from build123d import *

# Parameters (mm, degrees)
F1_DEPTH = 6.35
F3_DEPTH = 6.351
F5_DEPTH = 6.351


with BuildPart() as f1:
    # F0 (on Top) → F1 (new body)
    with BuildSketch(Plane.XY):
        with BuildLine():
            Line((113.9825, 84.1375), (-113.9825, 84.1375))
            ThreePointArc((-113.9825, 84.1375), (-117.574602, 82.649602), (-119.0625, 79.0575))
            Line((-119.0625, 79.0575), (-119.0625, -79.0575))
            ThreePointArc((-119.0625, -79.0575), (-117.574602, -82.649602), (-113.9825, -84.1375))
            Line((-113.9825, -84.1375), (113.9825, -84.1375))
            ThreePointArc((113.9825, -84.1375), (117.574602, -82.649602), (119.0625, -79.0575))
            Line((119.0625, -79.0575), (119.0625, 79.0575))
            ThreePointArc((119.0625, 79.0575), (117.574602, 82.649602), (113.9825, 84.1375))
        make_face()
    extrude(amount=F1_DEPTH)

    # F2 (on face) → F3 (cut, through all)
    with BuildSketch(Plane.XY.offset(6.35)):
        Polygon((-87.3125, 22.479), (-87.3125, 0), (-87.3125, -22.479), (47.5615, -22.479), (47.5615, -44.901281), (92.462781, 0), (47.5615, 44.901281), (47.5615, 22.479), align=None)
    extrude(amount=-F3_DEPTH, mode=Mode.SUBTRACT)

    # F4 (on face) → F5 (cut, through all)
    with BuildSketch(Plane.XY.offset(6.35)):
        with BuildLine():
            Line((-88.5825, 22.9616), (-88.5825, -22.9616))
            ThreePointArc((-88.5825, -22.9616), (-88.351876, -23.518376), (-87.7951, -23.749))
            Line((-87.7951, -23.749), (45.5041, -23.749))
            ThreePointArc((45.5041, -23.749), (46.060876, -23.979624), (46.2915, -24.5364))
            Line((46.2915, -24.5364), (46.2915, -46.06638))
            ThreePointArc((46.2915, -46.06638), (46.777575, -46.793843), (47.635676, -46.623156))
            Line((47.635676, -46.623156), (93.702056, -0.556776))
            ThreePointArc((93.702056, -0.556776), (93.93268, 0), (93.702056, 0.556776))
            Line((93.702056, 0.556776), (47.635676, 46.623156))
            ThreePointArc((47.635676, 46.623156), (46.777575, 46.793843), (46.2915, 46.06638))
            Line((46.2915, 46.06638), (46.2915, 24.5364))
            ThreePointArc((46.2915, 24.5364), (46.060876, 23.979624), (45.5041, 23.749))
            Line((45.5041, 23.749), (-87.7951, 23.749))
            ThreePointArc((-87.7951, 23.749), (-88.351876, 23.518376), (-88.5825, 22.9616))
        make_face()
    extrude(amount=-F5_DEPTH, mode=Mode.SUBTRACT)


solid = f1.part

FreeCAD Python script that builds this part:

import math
import FreeCAD as App
import Part
import Sketcher
from FreeCAD import Vector
Q = App.Units.Quantity

doc = App.newDocument("Part")
body = doc.addObject("PartDesign::Body", "Body")

# Sketch on XY plane
sketch1 = body.newObject("Sketcher::SketchObject", "Sketch")
sketch1.AttachmentSupport = (doc.getObject("XY_Plane"), [""])
sketch1.MapMode = "FlatFace"
sketch1.addGeometry([
    Part.LineSegment(Vector(114, 84, 0), Vector(-114, 84, 0)),  # 0
    Part.ArcOfCircle(Part.Circle(Vector(-114, 79, 0), Vector(0, 0, 1), 5), math.radians(90), math.radians(180)),  # 1
    Part.LineSegment(Vector(-119, 79, 0), Vector(-119, -79, 0)),  # 2
    Part.ArcOfCircle(Part.Circle(Vector(-114, -79, 0), Vector(0, 0, 1), 5), math.radians(-180), math.radians(-90)),  # 3
    Part.LineSegment(Vector(-114, -84, 0), Vector(114, -84, 0)),  # 4
    Part.ArcOfCircle(Part.Circle(Vector(114, -79, 0), Vector(0, 0, 1), 5), math.radians(-90), math.radians(0)),  # 5
    Part.LineSegment(Vector(119, -79, 0), Vector(119, 79, 0)),  # 6
    Part.ArcOfCircle(Part.Circle(Vector(114, 79, 0), Vector(0, 0, 1), 5), math.radians(0), math.radians(90)),  # 7
], False)
sketch1.addConstraint([
    Sketcher.Constraint("Tangent", 0, 2, 1, 1),
    Sketcher.Constraint("Tangent", 1, 2, 2, 1),
    Sketcher.Constraint("Tangent", 2, 2, 3, 1),
    Sketcher.Constraint("Tangent", 3, 2, 4, 1),
    Sketcher.Constraint("Tangent", 4, 2, 5, 1),
    Sketcher.Constraint("Tangent", 5, 2, 6, 1),
    Sketcher.Constraint("Tangent", 6, 2, 7, 1),
    Sketcher.Constraint("Tangent", 7, 2, 0, 1),
    Sketcher.Constraint("Horizontal", 0),
    Sketcher.Constraint("Vertical", 2),
    Sketcher.Constraint("Horizontal", 4),
    Sketcher.Constraint("Vertical", 6),
    Sketcher.Constraint("Equal", 1, 3),
    Sketcher.Constraint("Equal", 3, 5),
    Sketcher.Constraint("Equal", 5, 7),
    Sketcher.Constraint("Symmetric", 1, 3, 5, 3, -1, 1),
    Sketcher.Constraint("Radius", 1, Q("0.2000001 in")),
    Sketcher.Constraint("DistanceX", 0, 2, 0, 1, Q("8.975 in")),
    Sketcher.Constraint("DistanceY", 2, 2, 2, 1, Q("6.225 in")),
])
pad1 = body.newObject("PartDesign::Pad", "Pad")
pad1.Profile = sketch1
pad1.Length = Q("0.25 in")

# Sketch on XY plane
sketch2 = body.newObject("Sketcher::SketchObject", "Sketch001")
sketch2.AttachmentSupport = (doc.getObject("XY_Plane"), [""])
sketch2.MapMode = "FlatFace"
sketch2.AttachmentOffset = App.Placement(Vector(0, 0, 0.25 * 25.4), App.Rotation())
sketch2.addGeometry([
    Part.LineSegment(Vector(-87, 22, 0), Vector(-87, -22, 0)),  # 0
    Part.LineSegment(Vector(-87, -22, 0), Vector(48, -22, 0)),  # 1
    Part.LineSegment(Vector(48, -22, 0), Vector(48, -45, 0)),  # 2
    Part.LineSegment(Vector(48, -45, 0), Vector(92, 0, 0)),  # 3
    Part.LineSegment(Vector(92, 0, 0), Vector(48, 45, 0)),  # 4
    Part.LineSegment(Vector(48, 45, 0), Vector(48, 22, 0)),  # 5
    Part.LineSegment(Vector(48, 22, 0), Vector(-87, 22, 0)),  # 6
], False)
sketch2.addConstraint([
    Sketcher.Constraint("Coincident", 0, 2, 1, 1),
    Sketcher.Constraint("Coincident", 1, 2, 2, 1),
    Sketcher.Constraint("Coincident", 2, 2, 3, 1),
    Sketcher.Constraint("Coincident", 3, 2, 4, 1),
    Sketcher.Constraint("Coincident", 4, 2, 5, 1),
    Sketcher.Constraint("Coincident", 5, 2, 6, 1),
    Sketcher.Constraint("Coincident", 6, 2, 0, 1),
    Sketcher.Constraint("Vertical", 0),
    Sketcher.Constraint("Horizontal", 1),
    Sketcher.Constraint("Vertical", 2),
    Sketcher.Constraint("Vertical", 5),
    Sketcher.Constraint("Horizontal", 6),
    Sketcher.Constraint("Symmetric", 2, 2, 4, 2, -1),
    Sketcher.Constraint("PointOnObject", 3, 2, -1),
    Sketcher.Constraint("Perpendicular", 3, 4),
    Sketcher.Constraint("Equal", 2, 5),
    Sketcher.Constraint("Distance", 3, Q("2.5 in")),
    Sketcher.Constraint("DistanceX", 1, 1, 1, 2, Q("5.31 in")),
    Sketcher.Constraint("DistanceY", 0, 2, 0, 1, Q("1.77 in")),
    Sketcher.Constraint("DistanceX", 0, 2, -1, 1, Q("3.4375 in")),
])
pocket1 = body.newObject("PartDesign::Pocket", "Pocket")
pocket1.Profile = sketch2
pocket1.Type = "ThroughAll"

# Sketch on XY plane
sketch3 = body.newObject("Sketcher::SketchObject", "Sketch002")
sketch3.AttachmentSupport = (doc.getObject("XY_Plane"), [""])
sketch3.MapMode = "FlatFace"
sketch3.AttachmentOffset = App.Placement(Vector(0, 0, 0.25 * 25.4), App.Rotation())
sketch3.addGeometry([
    Part.LineSegment(Vector(-88.6, 23, 0), Vector(-88.6, -23, 0)),  # 0
    Part.ArcOfCircle(Part.Circle(Vector(-87.8, -23, 0), Vector(0, 0, 1), 0.8), math.radians(180), math.radians(270)),  # 1
    Part.LineSegment(Vector(-87.8, -23.7, 0), Vector(45.5, -23.7, 0)),  # 2
    Part.ArcOfCircle(Part.Circle(Vector(45.5, -24.5, 0), Vector(0, 0, 1), 0.8), math.radians(0), math.radians(90)),  # 3
    Part.LineSegment(Vector(46.3, -24.5, 0), Vector(46.3, -46.1, 0)),  # 4
    Part.ArcOfCircle(Part.Circle(Vector(47.1, -46.1, 0), Vector(0, 0, 1), 0.8), math.radians(180), math.radians(315)),  # 5
    Part.LineSegment(Vector(47.6, -46.6, 0), Vector(93.7, -0.6, 0)),  # 6
    Part.ArcOfCircle(Part.Circle(Vector(93.1, 0, 0), Vector(0, 0, 1), 0.8), math.radians(-45), math.radians(45)),  # 7
    Part.LineSegment(Vector(93.7, 0.6, 0), Vector(47.6, 46.6, 0)),  # 8
    Part.ArcOfCircle(Part.Circle(Vector(47.1, 46.1, 0), Vector(0, 0, 1), 0.8), math.radians(45), math.radians(180)),  # 9
    Part.LineSegment(Vector(46.3, 46.1, 0), Vector(46.3, 24.5, 0)),  # 10
    Part.ArcOfCircle(Part.Circle(Vector(45.5, 24.5, 0), Vector(0, 0, 1), 0.8), math.radians(-90), math.radians(0)),  # 11
    Part.LineSegment(Vector(45.5, 23.7, 0), Vector(-87.8, 23.7, 0)),  # 12
    Part.ArcOfCircle(Part.Circle(Vector(-87.8, 23, 0), Vector(0, 0, 1), 0.8), math.radians(90), math.radians(180)),  # 13
], False)
sketch3.addConstraint([
    Sketcher.Constraint("Tangent", 0, 2, 1, 1),
    Sketcher.Constraint("Tangent", 1, 2, 2, 1),
    Sketcher.Constraint("Tangent", 2, 2, 3, 2),
    Sketcher.Constraint("Tangent", 3, 1, 4, 1),
    Sketcher.Constraint("Tangent", 4, 2, 5, 1),
    Sketcher.Constraint("Tangent", 5, 2, 6, 1),
    Sketcher.Constraint("Tangent", 6, 2, 7, 1),
    Sketcher.Constraint("Tangent", 7, 2, 8, 1),
    Sketcher.Constraint("Tangent", 8, 2, 9, 1),
    Sketcher.Constraint("Tangent", 9, 2, 10, 1),
    Sketcher.Constraint("Tangent", 10, 2, 11, 2),
    Sketcher.Constraint("Tangent", 11, 1, 12, 1),
    Sketcher.Constraint("Tangent", 12, 2, 13, 1),
    Sketcher.Constraint("Tangent", 13, 2, 0, 1),
    Sketcher.Constraint("Vertical", 0),
    Sketcher.Constraint("Horizontal", 2),
    Sketcher.Constraint("Vertical", 4),
    Sketcher.Constraint("Vertical", 10),
    Sketcher.Constraint("Horizontal", 12),
    Sketcher.Constraint("Equal", 1, 3),
    Sketcher.Constraint("Equal", 3, 5),
    Sketcher.Constraint("Equal", 5, 7),
    Sketcher.Constraint("Equal", 7, 9),
    Sketcher.Constraint("Equal", 9, 11),
    Sketcher.Constraint("Equal", 11, 13),
    Sketcher.Constraint("Symmetric", 5, 3, 9, 3, -1),
    Sketcher.Constraint("PointOnObject", 7, 3, -1),
    Sketcher.Constraint("Perpendicular", 6, 8),
    Sketcher.Constraint("Equal", 4, 10),
    Sketcher.Constraint("Radius", 1, Q("0.031 in")),
    Sketcher.Constraint("DistanceX", 2, 1, 2, 2, Q("5.248 in")),
    Sketcher.Constraint("DistanceY", 0, 2, 0, 1, Q("1.808 in")),
    Sketcher.Constraint("DistanceX", 1, 3, -1, 1, Q("3.4565 in")),
    Sketcher.Constraint("Distance", 6, Q("65.147699 mm")),
])
pocket2 = body.newObject("PartDesign::Pocket", "Pocket001")
pocket2.Profile = sketch3
pocket2.Type = "ThroughAll"

doc.recompute()
